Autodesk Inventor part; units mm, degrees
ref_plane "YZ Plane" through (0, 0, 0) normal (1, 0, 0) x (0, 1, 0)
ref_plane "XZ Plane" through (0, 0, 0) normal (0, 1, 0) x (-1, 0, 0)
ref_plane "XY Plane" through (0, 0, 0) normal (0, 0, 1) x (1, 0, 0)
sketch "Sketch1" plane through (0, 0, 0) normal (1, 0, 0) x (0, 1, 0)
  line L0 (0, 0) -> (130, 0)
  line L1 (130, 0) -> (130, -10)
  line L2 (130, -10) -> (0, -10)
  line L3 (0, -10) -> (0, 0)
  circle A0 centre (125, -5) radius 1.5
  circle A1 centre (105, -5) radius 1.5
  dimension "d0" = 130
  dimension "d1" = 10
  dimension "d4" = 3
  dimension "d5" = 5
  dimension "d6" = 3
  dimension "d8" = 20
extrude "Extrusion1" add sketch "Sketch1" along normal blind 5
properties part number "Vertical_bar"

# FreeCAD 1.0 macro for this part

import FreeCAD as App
import Part
import Sketcher

doc = App.newDocument("Part")
params = doc.addObject("Spreadsheet::Sheet", "Params")
for row, (alias, value) in enumerate([
    ("sketch1_diameter", "3 mm"),
    ("sketch1_width", "130 mm"),
    ("sketch1_height", "10 mm"),
    ("pad1_length", "5 mm"),
], start=1):
    params.set(f"A{row}", alias)
    params.set(f"B{row}", "=" + value)
    params.setAlias(f"B{row}", alias)

body = doc.addObject("PartDesign::Body", "Body")

# Sketch on YZ plane
sketch1 = body.newObject("Sketcher::SketchObject", "Sketch")
sketch1.AttachmentSupport = (doc.getObject("YZ_Plane"), [""])
sketch1.MapMode = "FlatFace"
sketch1.addGeometry([
    Part.LineSegment(App.Vector(130, 0, 0), App.Vector(0, 0, 0)),  # 0
    Part.LineSegment(App.Vector(0, 0, 0), App.Vector(0, -10, 0)),  # 1
    Part.LineSegment(App.Vector(0, -10, 0), App.Vector(130, -10, 0)),  # 2
    Part.LineSegment(App.Vector(130, -10, 0), App.Vector(130, 0, 0)),  # 3
    Part.Circle(App.Vector(105, -5, 0), App.Vector(0, 0, 1), 1.5),  # 4
    Part.Circle(App.Vector(125, -5, 0), App.Vector(0, 0, 1), 1.5),  # 5
], False)
sketch1.addConstraint([
    Sketcher.Constraint("Coincident", 0, 2, 1, 1),
    Sketcher.Constraint("Coincident", 1, 2, 2, 1),
    Sketcher.Constraint("Coincident", 2, 2, 3, 1),
    Sketcher.Constraint("Coincident", 3, 2, 0, 1),
    Sketcher.Constraint("Horizontal", 0),
    Sketcher.Constraint("Vertical", 1),
    Sketcher.Constraint("Horizontal", 2),
    Sketcher.Constraint("Vertical", 3),
    Sketcher.Constraint("Coincident", 0, 2, -1, 1),
    Sketcher.Constraint("Equal", 4, 5),
    Sketcher.Constraint("Horizontal", 4, 3, 5, 3),
    Sketcher.Constraint("Diameter", 4, 3.0),
    Sketcher.Constraint("DistanceX", 0, 2, 0, 1, 130.0),
    Sketcher.Constraint("DistanceY", 1, 2, 1, 1, 10.0),
    Sketcher.Constraint("DistanceY", 4, 3, -1, 1, 5.0),
    Sketcher.Constraint("DistanceX", 4, 3, 5, 3, 20.0),
    Sketcher.Constraint("DistanceX", 5, 3, 2, 2, 5.0),
])
sketch1.setExpression("Constraints[11]", "Params.sketch1_diameter")
sketch1.setExpression("Constraints[12]", "Params.sketch1_width")
sketch1.setExpression("Constraints[13]", "Params.sketch1_height")
pad1 = body.newObject("PartDesign::Pad", "Pad")
pad1.Profile = sketch1
pad1.setExpression("Length", "Params.pad1_length")

doc.recompute()
